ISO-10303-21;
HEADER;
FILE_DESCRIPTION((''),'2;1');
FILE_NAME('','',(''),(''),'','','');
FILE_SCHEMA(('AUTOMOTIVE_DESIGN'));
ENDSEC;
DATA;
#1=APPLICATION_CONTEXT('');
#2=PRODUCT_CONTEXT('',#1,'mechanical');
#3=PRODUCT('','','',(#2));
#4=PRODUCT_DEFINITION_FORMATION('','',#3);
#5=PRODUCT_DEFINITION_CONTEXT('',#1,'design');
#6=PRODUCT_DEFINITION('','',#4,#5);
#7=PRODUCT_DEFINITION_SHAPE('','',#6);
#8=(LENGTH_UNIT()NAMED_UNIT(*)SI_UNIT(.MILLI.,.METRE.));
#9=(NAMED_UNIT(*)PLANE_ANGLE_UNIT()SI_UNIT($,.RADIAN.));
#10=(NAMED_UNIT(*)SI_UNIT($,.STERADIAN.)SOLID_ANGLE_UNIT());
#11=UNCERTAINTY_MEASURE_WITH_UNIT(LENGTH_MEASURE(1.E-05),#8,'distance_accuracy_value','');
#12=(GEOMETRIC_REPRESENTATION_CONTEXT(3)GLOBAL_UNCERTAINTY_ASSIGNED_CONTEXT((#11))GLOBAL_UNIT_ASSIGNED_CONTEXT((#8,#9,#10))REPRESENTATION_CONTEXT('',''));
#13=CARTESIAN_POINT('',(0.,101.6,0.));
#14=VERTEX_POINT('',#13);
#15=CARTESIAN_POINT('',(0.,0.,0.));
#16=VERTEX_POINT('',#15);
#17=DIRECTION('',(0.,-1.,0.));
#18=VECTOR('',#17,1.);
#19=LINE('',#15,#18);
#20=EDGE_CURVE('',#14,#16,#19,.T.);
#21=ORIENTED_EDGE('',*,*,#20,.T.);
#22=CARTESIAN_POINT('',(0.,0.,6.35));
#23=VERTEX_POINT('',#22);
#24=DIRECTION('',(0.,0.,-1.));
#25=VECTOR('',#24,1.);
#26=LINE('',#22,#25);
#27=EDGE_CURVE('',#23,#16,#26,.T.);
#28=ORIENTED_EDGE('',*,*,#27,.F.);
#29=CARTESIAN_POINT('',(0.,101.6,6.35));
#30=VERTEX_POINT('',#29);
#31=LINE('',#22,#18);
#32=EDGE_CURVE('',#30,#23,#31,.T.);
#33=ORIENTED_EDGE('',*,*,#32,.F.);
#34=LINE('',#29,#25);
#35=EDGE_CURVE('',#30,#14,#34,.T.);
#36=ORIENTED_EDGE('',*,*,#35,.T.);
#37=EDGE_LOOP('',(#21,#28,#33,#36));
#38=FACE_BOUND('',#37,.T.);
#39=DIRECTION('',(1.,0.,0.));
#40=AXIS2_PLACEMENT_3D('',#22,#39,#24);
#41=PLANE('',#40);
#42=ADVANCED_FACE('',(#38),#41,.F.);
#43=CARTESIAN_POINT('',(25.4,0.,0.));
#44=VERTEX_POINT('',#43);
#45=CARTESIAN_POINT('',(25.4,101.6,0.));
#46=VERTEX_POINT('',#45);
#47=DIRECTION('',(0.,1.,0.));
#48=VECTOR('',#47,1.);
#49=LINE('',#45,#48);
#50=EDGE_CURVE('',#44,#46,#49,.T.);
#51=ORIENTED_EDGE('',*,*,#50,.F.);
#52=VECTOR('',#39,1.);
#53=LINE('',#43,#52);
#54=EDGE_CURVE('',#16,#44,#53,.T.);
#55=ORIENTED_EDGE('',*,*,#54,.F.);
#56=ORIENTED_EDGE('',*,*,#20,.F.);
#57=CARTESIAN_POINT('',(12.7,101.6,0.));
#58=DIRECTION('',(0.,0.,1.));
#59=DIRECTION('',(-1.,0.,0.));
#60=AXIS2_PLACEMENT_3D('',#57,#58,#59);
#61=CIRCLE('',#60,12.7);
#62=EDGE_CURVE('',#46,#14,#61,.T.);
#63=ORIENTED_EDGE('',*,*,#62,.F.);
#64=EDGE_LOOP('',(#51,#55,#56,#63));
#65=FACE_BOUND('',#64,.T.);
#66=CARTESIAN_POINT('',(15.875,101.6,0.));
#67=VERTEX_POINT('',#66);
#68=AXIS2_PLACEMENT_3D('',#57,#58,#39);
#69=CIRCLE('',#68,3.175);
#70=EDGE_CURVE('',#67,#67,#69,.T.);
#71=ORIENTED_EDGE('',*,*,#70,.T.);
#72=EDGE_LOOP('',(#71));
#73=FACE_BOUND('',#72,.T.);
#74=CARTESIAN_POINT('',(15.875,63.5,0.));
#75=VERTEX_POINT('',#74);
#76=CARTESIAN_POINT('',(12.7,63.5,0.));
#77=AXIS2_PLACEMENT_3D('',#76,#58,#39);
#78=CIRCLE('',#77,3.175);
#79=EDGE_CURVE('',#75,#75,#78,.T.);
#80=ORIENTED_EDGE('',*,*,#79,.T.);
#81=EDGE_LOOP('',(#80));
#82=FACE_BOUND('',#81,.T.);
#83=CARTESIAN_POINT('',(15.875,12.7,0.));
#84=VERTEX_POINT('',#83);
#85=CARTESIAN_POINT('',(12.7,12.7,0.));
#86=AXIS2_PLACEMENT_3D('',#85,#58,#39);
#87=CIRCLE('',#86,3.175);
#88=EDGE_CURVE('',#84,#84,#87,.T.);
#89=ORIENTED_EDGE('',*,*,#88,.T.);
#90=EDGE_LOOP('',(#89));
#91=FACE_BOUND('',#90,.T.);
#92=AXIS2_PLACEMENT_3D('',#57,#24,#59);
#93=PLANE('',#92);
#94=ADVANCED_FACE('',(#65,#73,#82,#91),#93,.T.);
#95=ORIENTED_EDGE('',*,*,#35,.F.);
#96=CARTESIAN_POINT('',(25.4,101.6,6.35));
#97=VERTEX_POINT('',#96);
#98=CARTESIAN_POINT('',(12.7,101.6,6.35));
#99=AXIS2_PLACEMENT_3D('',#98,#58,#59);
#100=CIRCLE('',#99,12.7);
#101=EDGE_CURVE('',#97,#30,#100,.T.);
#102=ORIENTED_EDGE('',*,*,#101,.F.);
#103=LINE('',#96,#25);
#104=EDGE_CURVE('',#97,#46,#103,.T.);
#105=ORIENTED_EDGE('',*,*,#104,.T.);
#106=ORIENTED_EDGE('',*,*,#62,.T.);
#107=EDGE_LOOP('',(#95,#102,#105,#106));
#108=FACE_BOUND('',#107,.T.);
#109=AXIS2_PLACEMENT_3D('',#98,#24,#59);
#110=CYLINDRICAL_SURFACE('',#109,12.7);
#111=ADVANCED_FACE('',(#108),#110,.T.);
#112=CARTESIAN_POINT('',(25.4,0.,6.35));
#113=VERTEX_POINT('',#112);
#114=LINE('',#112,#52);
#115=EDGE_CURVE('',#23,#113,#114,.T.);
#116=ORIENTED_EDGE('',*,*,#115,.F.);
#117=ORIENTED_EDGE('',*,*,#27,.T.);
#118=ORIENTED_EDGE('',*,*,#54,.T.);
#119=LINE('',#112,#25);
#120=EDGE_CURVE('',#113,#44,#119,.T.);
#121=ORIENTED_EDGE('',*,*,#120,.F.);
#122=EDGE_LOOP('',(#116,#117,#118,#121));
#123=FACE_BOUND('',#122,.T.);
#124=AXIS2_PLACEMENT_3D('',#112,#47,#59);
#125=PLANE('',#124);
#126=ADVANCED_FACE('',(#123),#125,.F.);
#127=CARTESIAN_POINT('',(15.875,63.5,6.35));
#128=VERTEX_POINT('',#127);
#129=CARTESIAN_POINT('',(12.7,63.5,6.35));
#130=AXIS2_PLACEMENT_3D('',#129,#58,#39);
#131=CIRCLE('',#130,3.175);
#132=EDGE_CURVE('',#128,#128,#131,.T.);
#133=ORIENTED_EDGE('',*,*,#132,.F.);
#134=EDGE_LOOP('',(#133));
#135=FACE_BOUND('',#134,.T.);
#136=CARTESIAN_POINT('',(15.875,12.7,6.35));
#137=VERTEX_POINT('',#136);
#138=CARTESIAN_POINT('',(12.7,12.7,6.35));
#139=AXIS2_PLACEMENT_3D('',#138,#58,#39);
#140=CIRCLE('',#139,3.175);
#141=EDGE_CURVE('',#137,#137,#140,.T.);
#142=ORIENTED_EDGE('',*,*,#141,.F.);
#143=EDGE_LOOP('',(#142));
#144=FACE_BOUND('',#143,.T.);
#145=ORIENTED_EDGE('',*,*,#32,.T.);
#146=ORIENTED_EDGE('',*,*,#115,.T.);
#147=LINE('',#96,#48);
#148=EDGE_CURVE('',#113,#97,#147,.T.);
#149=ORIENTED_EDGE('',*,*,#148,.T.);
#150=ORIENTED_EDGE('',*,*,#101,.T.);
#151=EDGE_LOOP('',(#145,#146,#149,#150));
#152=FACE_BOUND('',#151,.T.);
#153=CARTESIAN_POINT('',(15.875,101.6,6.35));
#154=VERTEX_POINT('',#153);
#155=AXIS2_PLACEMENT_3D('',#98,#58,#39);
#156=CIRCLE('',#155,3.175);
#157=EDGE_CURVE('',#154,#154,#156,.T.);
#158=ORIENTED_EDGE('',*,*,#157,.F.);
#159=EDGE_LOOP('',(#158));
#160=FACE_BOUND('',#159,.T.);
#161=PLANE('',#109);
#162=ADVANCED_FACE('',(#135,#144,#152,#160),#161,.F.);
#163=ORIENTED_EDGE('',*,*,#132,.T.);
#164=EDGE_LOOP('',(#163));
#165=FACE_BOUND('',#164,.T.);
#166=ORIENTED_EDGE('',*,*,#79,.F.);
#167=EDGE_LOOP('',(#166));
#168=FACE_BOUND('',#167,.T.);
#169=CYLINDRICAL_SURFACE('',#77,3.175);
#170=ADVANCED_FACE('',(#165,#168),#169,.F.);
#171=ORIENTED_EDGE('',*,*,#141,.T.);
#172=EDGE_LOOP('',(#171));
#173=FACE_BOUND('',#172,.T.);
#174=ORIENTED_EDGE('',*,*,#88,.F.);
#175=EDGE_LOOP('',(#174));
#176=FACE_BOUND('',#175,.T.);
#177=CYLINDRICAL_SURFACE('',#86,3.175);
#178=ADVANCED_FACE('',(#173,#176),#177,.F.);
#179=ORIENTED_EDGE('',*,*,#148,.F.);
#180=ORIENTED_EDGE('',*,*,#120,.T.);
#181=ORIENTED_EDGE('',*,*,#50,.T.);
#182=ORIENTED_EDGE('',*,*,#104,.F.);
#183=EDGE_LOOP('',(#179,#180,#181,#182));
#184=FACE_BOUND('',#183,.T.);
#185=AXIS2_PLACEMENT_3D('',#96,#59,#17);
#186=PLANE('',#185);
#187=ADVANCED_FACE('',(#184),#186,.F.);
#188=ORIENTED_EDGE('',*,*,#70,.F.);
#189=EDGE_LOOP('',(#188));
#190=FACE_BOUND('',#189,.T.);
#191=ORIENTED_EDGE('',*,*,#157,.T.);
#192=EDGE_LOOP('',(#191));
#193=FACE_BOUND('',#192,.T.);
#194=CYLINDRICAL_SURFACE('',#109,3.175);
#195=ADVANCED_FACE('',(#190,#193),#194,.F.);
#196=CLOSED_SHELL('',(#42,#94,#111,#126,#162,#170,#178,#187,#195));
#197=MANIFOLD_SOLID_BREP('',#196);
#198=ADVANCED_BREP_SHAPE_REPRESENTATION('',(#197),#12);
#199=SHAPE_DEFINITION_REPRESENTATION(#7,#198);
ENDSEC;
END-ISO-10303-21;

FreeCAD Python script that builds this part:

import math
import FreeCAD as App
import Part
import Sketcher
Q = App.Units.Quantity

doc = App.newDocument("Part")
body = doc.addObject("PartDesign::Body", "Body")

sketch1 = body.newObject("Sketcher::SketchObject", "Sketch")
sketch1.AttachmentSupport = (doc.getObject("XY_Plane"), [""])
sketch1.MapMode = "FlatFace"
sketch1.addGeometry(Part.LineSegment(App.Vector(0, 101.6, 0), App.Vector(0, 0, 0)), False)
sketch1.addGeometry(Part.LineSegment(App.Vector(0, 0, 0), App.Vector(25.4, 0, 0)), False)
sketch1.addGeometry(Part.LineSegment(App.Vector(25.4, 0, 0), App.Vector(25.4, 101.6, 0)), False)
sketch1.addGeometry(Part.ArcOfCircle(Part.Circle(App.Vector(12.7, 101.6, 0), App.Vector(0, 0, 1), 12.7), math.radians(0), math.radians(180)), False)
sketch1.addGeometry(Part.Circle(App.Vector(12.7, 101.6, 0), App.Vector(0, 0, 1), 3.2), False)
sketch1.addConstraint(Sketcher.Constraint("Coincident", 0, 2, 1, 1))
sketch1.addConstraint(Sketcher.Constraint("Coincident", 1, 2, 2, 1))
sketch1.addConstraint(Sketcher.Constraint("Tangent", 2, 2, 3, 1))
sketch1.addConstraint(Sketcher.Constraint("Tangent", 3, 2, 0, 1))
sketch1.addConstraint(Sketcher.Constraint("Vertical", 0))
sketch1.addConstraint(Sketcher.Constraint("Horizontal", 1))
sketch1.addConstraint(Sketcher.Constraint("Vertical", 2))
sketch1.addConstraint(Sketcher.Constraint("Coincident", 0, 2, -1, 1))
sketch1.addConstraint(Sketcher.Constraint("Coincident", 4, 3, 3, 3))
sketch1.addConstraint(Sketcher.Constraint("Radius", 3, Q("0.5 in")))
sketch1.addConstraint(Sketcher.Constraint("Diameter", 4, Q("0.25 in")))
sketch1.addConstraint(Sketcher.Constraint("DistanceY", 0, 2, 0, 1, Q("4 in")))
pad1 = body.newObject("PartDesign::Pad", "Pad")
pad1.Profile = sketch1
pad1.Length = Q("0.25 in")

sketch2 = body.newObject("Sketcher::SketchObject", "Sketch001")
sketch2.AttachmentSupport = (doc.getObject("XY_Plane"), [""])
sketch2.MapMode = "FlatFace"
sketch2.AttachmentOffset = App.Placement(App.Vector(0, 0, 0.25 * 25.4), App.Rotation())
sketch2.addGeometry(Part.Circle(App.Vector(12.7, 63.5, 0), App.Vector(0, 0, 1), 3.2), False)
sketch2.addGeometry(Part.Circle(App.Vector(12.7, 12.7, 0), App.Vector(0, 0, 1), 3.2), False)
sketch2.addConstraint(Sketcher.Constraint("Equal", 0, 1))
sketch2.addConstraint(Sketcher.Constraint("Vertical", 0, 3, 1, 3))
sketch2.addConstraint(Sketcher.Constraint("Diameter", 0, Q("0.25 in")))
sketch2.addConstraint(Sketcher.Constraint("DistanceY", 1, 3, 0, 3, Q("2 in")))
sketch2.addConstraint(Sketcher.Constraint("DistanceX", -1, 1, 0, 3, Q("0.5 in")))
sketch2.addConstraint(Sketcher.Constraint("DistanceY", -1, 1, 0, 3, Q("2.5 in")))
pocket1 = body.newObject("PartDesign::Pocket", "Pocket")
pocket1.Profile = sketch2
pocket1.Type = "ThroughAll"

doc.recompute()
